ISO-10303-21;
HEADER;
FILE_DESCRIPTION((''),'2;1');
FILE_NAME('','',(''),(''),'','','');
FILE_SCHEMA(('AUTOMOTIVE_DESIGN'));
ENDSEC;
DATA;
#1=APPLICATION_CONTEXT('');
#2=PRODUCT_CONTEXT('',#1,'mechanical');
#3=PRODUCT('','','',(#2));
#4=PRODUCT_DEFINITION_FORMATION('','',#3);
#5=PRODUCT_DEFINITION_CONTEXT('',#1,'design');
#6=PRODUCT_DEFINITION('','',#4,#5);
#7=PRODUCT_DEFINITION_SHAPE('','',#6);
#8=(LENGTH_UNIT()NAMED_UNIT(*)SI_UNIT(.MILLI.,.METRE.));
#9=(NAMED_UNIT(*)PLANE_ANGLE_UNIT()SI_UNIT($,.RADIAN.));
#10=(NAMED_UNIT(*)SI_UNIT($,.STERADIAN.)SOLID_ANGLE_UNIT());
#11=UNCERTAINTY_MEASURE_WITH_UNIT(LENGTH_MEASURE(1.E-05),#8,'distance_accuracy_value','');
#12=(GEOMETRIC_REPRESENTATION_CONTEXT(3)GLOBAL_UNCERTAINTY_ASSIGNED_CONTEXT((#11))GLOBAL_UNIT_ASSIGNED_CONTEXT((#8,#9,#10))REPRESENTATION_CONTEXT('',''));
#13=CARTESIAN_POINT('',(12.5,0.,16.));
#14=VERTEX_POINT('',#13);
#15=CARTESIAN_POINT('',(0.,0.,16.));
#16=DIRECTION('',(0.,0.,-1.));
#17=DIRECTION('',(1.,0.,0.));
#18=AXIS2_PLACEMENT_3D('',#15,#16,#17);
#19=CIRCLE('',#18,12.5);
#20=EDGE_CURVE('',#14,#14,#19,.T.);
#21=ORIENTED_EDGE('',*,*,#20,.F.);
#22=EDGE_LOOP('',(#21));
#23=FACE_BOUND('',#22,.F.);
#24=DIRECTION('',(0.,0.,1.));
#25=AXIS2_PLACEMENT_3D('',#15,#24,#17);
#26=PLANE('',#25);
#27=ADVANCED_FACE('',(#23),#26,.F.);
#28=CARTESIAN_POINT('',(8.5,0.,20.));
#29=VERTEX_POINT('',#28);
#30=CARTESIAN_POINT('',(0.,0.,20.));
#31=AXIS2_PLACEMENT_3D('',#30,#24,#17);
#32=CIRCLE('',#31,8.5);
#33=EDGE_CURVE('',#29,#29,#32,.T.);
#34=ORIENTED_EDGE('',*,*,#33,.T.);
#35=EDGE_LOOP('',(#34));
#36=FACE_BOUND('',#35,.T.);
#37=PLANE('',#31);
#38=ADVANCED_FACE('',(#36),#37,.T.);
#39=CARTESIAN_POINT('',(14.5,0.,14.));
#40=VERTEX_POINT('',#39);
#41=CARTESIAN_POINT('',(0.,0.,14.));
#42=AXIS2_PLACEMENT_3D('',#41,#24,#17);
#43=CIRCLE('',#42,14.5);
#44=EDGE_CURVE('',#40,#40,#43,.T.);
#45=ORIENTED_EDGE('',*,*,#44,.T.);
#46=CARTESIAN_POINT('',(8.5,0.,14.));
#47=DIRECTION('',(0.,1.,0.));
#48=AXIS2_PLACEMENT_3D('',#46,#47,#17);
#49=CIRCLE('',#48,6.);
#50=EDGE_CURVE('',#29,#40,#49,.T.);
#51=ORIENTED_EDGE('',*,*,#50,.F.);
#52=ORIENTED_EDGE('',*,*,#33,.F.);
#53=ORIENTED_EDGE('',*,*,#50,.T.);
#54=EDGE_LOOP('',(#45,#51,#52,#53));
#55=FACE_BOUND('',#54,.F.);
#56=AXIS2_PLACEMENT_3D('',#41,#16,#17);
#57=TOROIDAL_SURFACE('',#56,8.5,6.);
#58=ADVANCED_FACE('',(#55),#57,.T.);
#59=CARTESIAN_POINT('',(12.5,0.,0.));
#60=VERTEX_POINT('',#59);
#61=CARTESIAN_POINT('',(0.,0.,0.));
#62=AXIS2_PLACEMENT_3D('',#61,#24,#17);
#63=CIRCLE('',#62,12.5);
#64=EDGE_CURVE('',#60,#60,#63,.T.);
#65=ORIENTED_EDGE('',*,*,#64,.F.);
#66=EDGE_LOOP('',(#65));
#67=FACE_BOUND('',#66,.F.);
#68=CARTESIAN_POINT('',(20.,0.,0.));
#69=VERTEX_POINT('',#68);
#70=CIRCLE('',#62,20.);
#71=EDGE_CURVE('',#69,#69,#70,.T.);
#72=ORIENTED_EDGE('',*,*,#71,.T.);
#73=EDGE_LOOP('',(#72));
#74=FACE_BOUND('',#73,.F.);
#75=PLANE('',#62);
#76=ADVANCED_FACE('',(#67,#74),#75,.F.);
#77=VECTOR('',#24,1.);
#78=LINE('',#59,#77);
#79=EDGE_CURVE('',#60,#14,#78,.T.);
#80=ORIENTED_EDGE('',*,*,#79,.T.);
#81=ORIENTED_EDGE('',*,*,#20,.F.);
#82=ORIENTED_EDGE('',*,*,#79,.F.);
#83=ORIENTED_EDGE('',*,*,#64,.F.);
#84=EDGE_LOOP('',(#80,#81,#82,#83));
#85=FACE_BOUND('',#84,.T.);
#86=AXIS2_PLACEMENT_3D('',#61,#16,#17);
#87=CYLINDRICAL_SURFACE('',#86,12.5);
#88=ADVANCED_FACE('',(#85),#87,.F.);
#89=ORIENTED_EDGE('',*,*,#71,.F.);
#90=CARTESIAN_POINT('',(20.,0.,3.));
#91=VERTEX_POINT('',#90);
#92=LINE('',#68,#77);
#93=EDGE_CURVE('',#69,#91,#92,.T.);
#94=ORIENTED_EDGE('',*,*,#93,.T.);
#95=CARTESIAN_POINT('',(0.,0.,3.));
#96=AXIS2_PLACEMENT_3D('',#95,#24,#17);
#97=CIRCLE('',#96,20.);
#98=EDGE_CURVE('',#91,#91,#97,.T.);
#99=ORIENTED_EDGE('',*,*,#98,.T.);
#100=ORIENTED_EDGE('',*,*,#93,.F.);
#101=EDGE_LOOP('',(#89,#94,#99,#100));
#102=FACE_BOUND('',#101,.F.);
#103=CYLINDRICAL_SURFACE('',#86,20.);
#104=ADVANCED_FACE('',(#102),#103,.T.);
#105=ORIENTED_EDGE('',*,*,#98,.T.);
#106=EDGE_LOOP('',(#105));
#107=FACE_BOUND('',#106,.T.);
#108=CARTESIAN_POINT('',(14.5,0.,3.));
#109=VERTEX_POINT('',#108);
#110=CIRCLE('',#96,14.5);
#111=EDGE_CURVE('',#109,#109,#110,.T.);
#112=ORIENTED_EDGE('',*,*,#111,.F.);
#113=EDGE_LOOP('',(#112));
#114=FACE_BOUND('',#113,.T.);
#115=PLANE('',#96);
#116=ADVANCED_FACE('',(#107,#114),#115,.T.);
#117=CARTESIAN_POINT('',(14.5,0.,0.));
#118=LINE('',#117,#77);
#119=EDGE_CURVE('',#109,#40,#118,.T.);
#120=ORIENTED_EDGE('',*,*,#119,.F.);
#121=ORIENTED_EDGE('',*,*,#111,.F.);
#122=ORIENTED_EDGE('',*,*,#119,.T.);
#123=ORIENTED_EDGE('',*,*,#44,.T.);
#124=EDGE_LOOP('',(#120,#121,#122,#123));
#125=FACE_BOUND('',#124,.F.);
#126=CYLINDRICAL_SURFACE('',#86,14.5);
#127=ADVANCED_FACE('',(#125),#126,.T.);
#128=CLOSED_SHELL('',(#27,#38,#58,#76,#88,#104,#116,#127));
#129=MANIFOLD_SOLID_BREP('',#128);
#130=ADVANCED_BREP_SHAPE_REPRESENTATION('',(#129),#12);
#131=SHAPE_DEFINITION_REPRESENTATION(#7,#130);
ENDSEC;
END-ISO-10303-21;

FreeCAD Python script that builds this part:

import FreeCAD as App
import Part
import Sketcher

V = App.Vector


def edges_at(feature, points):
    """Names of the edges that pass closest to the given points."""
    edges = feature.Shape.Edges
    near = lambda p: min(range(len(edges)), key=lambda i: edges[i].distToShape(Part.Vertex(*p))[0])
    return sorted({f"Edge{near(p) + 1}" for p in points})

doc = App.newDocument("Part")
body = doc.addObject("PartDesign::Body", "Body")

sketch1 = doc.addObject("Sketcher::SketchObject", "Sketch")
body.addObject(sketch1)
sketch1.AttachmentSupport = (doc.XY_Plane, [""])
sketch1.MapMode = "FlatFace"
sketch1.addGeometry([
    Part.Circle(V(0, 0, 0), V(0, 0, 1), 20),
    Part.Circle(V(0, 0, 0), V(0, 0, 1), 14),
], False)
sketch1.addConstraint([
    Sketcher.Constraint("Coincident", 0, 3, -1, 1),
    Sketcher.Constraint("Coincident", 1, 3, -1, 1),
    Sketcher.Constraint("Diameter", 0, 40.0),
    Sketcher.Constraint("Diameter", 1, 29.0),
])
pad1 = doc.addObject("PartDesign::Pad", "Pad")
body.addObject(pad1)
pad1.Profile = sketch1
pad1.Length = 3

sketch2 = doc.addObject("Sketcher::SketchObject", "Sketch001")
body.addObject(sketch2)
sketch2.AttachmentSupport = (doc.XY_Plane, [""])
sketch2.MapMode = "FlatFace"
sketch2.addGeometry([
    Part.Circle(V(0, 0, 0), V(0, 0, 1), 14),
    Part.Circle(V(0, 0, 0), V(0, 0, 1), 12),
], False)
sketch2.addConstraint([
    Sketcher.Constraint("Coincident", 0, 3, -1, 1),
    Sketcher.Constraint("Coincident", 1, 3, -1, 1),
    Sketcher.Constraint("Diameter", 0, 29.0),
    Sketcher.Constraint("Diameter", 1, 25.0),
])
pad2 = doc.addObject("PartDesign::Pad", "Pad001")
body.addObject(pad2)
pad2.Profile = sketch2
pad2.Length = 20

sketch3 = doc.addObject("Sketcher::SketchObject", "Sketch002")
body.addObject(sketch3)
sketch3.AttachmentSupport = (doc.XY_Plane, [""])
sketch3.MapMode = "FlatFace"
sketch3.AttachmentOffset = App.Placement(V(0, 0, 20), App.Rotation())
sketch3.addGeometry(Part.Circle(V(0, 0, 0), V(0, 0, 1), 13), False)
sketch3.addConstraint([
    Sketcher.Constraint("Coincident", 0, 3, -1, 1),
    Sketcher.Constraint("Diameter", 0, 26.02815),
])
pad3 = doc.addObject("PartDesign::Pad", "Pad002")
body.addObject(pad3)
pad3.Profile = sketch3
pad3.Length = 4
pad3.Reversed = True
doc.recompute()

fillet = doc.addObject("PartDesign::Fillet", "Fillet")
body.addObject(fillet)
fillet.Base = (pad3, edges_at(pad3, [(-14.5, 0, 20)]))
fillet.Radius = 6

doc.recompute()
